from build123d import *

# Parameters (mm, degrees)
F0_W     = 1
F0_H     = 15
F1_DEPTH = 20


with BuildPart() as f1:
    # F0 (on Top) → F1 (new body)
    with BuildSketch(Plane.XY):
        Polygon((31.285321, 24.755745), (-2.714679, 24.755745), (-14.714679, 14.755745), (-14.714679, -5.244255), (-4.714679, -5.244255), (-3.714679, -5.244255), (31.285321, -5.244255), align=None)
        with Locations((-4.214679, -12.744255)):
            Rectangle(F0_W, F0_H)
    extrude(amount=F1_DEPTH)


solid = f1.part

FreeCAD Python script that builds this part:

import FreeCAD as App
import Part
import Sketcher
from FreeCAD import Vector
Q = App.Units.Quantity


def add_polygon(sketch, points):
    """Adds a closed chain of lines whose ends are joined by coincident constraints."""
    first, n = sketch.GeometryCount, len(points)
    for a, b in zip(points, points[1:] + points[:1]):
        sketch.addGeometry(Part.LineSegment(App.Vector(*a, 0), App.Vector(*b, 0)), False)
    for i in range(n):
        sketch.addConstraint(Sketcher.Constraint("Coincident", first + i, 2, first + (i + 1) % n, 1))

doc = App.newDocument("Part")
params = doc.addObject("Spreadsheet::Sheet", "Params")
for row, (alias, value) in enumerate([
    ("sketch1_width", "34 mm"),
    ("sketch1_width2", "10 mm"),
    ("sketch1_width3", "1 mm"),
    ("sketch1_width4", "35 mm"),
    ("sketch1_height", "20 mm"),
    ("pad1_length", "20 mm"),
], start=1):
    params.set(f"A{row}", alias)
    params.set(f"B{row}", "=" + value)
    params.setAlias(f"B{row}", alias)

body = doc.addObject("PartDesign::Body", "Body")

# Sketch on XY plane
sketch1 = doc.addObject("Sketcher::SketchObject", "Sketch")
body.addObject(sketch1)
sketch1.AttachmentSupport = (doc.XY_Plane, [""])
sketch1.MapMode = "FlatFace"
add_polygon(sketch1, [(31.3, 24.8), (-2.7, 24.8), (-14.7, 14.8), (-14.7, -5.2), (-4.7, -5.2), (-4.7, -20.2), (-3.7, -20.2), (-3.7, -5.2), (31.3, -5.2)])  # lines 0-8
sketch1.addConstraint([
    Sketcher.Constraint("Horizontal", 0),
    Sketcher.Constraint("Vertical", 2),
    Sketcher.Constraint("Horizontal", 3),
    Sketcher.Constraint("Vertical", 4),
    Sketcher.Constraint("Horizontal", 5),
    Sketcher.Constraint("Vertical", 6),
    Sketcher.Constraint("Horizontal", 7),
    Sketcher.Constraint("Vertical", 8),
    Sketcher.Constraint("Horizontal", 3, 2, 6, 2),
    Sketcher.Constraint("DistanceX", 0, 2, 0, 1, Q("34 mm")),
    Sketcher.Constraint("DistanceX", 3, 1, 3, 2, Q("10 mm")),
    Sketcher.Constraint("DistanceX", 5, 1, 5, 2, Q("1 mm")),
    Sketcher.Constraint("DistanceX", 7, 1, 7, 2, Q("35 mm")),
    Sketcher.Constraint("DistanceY", 2, 2, 2, 1, Q("20 mm")),
    Sketcher.Constraint("DistanceY", 4, 2, 4, 1, Q("15 mm")),
    Sketcher.Constraint("DistanceY", 8, 1, 8, 2, Q("30 mm")),
    Sketcher.Constraint("DistanceX", 0, 2, -1, 1, Q("2.714679 mm")),
    Sketcher.Constraint("DistanceY", -1, 1, 0, 2, Q("24.755745 mm")),
])
sketch1.setExpression("Constraints[18]", "Params.sketch1_width")
sketch1.setExpression("Constraints[19]", "Params.sketch1_width2")
sketch1.setExpression("Constraints[20]", "Params.sketch1_width3")
sketch1.setExpression("Constraints[21]", "Params.sketch1_width4")
sketch1.setExpression("Constraints[22]", "Params.sketch1_height")
pad1 = doc.addObject("PartDesign::Pad", "Pad")
body.addObject(pad1)
pad1.Profile = sketch1
pad1.setExpression("Length", "Params.pad1_length")

doc.recompute()
